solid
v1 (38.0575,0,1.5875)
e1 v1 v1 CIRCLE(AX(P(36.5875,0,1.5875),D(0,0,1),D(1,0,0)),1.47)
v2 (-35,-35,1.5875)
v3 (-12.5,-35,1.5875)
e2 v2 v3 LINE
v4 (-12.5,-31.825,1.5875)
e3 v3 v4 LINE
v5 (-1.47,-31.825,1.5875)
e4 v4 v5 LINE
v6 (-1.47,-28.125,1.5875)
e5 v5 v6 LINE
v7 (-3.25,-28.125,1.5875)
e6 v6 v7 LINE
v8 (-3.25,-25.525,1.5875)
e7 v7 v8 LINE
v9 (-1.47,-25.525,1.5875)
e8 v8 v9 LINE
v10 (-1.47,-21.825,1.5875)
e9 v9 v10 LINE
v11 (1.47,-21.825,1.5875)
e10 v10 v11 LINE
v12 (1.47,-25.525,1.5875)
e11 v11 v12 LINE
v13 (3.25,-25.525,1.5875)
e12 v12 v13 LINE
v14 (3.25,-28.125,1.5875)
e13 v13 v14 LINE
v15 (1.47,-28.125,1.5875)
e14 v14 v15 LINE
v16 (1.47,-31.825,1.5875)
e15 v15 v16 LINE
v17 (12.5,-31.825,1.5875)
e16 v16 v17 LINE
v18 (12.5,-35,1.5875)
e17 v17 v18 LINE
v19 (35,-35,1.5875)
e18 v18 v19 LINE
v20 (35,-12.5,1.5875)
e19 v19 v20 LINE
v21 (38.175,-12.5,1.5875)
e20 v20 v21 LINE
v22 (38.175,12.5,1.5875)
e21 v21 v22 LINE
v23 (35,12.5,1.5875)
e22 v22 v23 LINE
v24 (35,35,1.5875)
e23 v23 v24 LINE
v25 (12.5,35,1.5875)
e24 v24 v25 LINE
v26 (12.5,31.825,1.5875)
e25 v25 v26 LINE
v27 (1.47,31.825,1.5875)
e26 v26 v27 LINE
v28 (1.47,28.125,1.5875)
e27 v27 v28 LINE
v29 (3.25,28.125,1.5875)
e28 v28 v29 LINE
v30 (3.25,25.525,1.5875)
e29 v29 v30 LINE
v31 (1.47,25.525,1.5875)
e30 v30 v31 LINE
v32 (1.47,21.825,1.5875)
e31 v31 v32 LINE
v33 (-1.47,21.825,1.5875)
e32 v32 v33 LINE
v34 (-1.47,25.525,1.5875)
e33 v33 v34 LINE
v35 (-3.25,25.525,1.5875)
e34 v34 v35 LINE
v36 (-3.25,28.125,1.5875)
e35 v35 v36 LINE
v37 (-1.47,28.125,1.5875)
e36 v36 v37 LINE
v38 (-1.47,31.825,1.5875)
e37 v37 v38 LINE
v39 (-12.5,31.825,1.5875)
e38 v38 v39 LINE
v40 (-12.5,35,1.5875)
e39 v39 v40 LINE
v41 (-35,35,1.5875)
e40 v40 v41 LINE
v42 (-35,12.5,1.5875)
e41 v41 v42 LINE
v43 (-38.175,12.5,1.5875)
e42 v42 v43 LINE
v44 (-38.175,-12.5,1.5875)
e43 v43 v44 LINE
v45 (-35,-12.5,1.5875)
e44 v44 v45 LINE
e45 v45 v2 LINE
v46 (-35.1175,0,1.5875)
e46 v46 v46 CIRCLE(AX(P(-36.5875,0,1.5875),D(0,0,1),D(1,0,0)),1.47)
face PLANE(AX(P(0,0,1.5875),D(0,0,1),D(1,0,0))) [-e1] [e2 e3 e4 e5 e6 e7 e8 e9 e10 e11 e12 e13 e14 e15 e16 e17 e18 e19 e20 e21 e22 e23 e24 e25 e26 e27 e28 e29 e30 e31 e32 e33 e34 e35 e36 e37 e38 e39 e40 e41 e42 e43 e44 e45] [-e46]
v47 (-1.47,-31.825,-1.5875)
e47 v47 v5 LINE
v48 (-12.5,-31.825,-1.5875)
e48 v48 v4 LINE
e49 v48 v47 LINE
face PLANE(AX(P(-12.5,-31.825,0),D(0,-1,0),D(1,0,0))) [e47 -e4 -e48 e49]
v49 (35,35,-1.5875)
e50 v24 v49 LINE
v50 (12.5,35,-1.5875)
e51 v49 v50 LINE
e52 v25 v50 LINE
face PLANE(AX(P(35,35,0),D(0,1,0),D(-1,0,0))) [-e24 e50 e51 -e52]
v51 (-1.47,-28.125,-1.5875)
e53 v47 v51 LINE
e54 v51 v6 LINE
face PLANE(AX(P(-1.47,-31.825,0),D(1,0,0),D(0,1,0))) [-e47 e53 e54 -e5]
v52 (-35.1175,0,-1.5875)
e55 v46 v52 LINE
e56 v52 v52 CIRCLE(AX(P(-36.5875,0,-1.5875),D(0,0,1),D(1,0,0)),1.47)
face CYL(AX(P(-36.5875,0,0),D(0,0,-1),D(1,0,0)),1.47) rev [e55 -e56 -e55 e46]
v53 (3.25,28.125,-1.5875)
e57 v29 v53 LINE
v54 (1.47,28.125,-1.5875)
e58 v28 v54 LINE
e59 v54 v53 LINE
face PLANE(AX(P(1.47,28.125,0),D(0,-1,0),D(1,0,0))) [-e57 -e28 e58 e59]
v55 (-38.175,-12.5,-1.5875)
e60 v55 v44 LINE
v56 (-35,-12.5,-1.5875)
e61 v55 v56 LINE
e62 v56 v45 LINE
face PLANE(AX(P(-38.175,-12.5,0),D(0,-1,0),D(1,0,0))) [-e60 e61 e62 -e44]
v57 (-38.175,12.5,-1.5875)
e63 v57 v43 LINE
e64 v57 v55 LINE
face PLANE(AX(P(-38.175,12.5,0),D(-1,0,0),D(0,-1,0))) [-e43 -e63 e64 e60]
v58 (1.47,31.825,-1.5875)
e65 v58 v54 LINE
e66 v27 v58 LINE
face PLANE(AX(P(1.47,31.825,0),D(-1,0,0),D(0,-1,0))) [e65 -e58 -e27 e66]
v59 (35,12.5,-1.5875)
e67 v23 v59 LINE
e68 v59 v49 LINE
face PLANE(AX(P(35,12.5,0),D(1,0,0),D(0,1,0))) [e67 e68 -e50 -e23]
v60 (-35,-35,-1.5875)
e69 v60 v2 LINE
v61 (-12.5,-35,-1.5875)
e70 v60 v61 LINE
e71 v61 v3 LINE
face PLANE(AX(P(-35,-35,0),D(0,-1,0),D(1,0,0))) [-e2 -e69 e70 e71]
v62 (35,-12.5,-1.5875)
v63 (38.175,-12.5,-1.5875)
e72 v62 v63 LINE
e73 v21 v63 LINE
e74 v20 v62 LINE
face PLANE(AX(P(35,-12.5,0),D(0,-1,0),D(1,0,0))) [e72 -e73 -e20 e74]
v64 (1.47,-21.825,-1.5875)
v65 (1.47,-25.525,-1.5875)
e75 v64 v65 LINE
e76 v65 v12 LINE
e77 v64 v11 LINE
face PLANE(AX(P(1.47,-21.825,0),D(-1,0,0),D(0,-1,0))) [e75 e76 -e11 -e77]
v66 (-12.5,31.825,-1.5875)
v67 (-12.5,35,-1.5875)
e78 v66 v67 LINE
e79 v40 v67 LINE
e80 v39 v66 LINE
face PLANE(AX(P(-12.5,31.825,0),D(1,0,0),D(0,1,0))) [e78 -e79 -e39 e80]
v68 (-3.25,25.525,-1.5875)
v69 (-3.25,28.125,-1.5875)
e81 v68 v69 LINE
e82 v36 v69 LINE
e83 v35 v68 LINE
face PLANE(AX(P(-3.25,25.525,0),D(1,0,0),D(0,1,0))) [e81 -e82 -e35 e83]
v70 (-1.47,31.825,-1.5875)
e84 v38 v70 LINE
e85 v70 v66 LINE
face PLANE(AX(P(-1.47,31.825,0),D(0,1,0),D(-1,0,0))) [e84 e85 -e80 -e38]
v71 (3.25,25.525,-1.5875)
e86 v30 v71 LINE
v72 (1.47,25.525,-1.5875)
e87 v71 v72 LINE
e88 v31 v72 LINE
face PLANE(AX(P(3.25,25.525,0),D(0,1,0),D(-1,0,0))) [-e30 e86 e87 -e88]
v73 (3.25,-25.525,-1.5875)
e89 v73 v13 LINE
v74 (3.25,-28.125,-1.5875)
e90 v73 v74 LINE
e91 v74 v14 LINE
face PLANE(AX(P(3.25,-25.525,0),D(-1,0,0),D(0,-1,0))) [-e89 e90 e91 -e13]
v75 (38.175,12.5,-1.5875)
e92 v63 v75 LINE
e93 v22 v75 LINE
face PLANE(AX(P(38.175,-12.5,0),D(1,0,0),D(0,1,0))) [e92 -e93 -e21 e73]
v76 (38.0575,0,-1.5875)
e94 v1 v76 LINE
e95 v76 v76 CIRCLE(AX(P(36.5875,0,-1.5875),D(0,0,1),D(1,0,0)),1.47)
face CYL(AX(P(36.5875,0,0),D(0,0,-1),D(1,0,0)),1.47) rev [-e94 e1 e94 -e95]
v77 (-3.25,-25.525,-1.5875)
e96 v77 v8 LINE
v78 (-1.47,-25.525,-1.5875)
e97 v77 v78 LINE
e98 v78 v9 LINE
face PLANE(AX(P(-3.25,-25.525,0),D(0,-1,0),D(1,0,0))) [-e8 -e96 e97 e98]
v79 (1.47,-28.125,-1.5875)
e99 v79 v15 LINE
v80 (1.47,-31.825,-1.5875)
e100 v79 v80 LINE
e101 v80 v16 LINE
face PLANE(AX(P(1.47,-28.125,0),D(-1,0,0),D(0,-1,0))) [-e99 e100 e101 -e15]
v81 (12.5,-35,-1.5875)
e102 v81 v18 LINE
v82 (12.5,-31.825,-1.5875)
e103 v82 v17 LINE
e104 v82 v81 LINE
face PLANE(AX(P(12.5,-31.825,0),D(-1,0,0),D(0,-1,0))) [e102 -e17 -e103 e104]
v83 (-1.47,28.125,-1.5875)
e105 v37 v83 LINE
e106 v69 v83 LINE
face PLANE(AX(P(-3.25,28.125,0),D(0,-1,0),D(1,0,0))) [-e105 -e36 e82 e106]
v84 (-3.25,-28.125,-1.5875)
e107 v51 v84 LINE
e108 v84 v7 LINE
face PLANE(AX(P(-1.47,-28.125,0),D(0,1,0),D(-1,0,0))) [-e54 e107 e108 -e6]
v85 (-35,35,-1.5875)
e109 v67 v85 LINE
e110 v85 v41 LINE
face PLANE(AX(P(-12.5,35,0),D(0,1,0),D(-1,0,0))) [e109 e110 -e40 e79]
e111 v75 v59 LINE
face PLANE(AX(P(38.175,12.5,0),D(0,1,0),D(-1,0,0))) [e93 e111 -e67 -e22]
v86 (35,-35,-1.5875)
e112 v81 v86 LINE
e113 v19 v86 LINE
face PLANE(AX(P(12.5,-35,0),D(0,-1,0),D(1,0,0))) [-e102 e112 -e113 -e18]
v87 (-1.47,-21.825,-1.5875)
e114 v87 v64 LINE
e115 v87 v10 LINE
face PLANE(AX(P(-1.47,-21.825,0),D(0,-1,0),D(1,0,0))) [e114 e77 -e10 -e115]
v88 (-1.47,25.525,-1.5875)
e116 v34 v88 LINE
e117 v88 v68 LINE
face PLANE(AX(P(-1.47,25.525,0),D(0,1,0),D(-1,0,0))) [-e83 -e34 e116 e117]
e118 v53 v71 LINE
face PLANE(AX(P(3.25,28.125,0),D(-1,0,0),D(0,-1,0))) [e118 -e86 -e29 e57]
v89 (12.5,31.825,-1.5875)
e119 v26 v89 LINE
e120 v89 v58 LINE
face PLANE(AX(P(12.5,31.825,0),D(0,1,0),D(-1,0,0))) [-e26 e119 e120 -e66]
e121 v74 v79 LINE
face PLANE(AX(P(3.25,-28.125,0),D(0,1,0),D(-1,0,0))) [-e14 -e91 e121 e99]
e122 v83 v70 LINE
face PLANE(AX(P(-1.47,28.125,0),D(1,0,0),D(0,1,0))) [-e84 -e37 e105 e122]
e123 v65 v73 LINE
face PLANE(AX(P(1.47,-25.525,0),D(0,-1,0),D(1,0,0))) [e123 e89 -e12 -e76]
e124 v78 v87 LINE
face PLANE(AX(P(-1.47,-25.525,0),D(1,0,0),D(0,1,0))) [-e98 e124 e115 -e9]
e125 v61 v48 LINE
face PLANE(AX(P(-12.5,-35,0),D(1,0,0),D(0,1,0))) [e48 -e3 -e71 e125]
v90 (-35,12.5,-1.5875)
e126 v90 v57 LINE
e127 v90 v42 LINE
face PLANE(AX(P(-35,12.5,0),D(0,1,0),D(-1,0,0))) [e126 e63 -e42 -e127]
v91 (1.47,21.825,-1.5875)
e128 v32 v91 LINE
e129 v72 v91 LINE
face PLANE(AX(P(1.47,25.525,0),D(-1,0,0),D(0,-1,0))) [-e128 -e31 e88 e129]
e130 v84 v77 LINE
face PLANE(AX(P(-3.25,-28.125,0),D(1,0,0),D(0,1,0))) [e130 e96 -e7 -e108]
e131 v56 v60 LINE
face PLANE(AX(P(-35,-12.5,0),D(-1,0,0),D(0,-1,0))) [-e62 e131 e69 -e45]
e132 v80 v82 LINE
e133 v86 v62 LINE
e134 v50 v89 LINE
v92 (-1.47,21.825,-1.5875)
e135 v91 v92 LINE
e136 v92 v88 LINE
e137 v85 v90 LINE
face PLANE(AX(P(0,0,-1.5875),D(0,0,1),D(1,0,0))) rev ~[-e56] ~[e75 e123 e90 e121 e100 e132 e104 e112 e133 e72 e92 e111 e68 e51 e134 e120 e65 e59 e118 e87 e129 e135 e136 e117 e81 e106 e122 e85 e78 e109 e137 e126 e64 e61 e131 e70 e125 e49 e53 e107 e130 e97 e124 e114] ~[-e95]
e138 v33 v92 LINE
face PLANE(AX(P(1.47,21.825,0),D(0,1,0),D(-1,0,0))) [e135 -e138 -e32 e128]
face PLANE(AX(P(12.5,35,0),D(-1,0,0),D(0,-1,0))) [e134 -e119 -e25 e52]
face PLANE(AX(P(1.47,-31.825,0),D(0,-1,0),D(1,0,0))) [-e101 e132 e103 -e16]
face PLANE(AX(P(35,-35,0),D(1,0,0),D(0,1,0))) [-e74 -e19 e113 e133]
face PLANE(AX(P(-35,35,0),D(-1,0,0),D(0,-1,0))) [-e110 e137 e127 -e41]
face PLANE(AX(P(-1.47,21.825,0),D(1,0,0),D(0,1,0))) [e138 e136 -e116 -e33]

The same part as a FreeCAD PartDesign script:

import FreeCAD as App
import Part
import Sketcher

V = App.Vector
Q = App.Units.Quantity

doc = App.newDocument("Part")
params = doc.addObject("Spreadsheet::Sheet", "Params")
for row, (alias, value) in enumerate([
    ("sketch1_diameter", "2.94 mm"),
    ("sketch1_height", "25 mm"),
    ("sketch1_width", "22.5 mm"),
    ("sketch1_height2", "3.7 mm"),
    ("sketch1_height3", "2.6 mm"),
    ("pad1_length", "3.175 mm"),
], start=1):
    params.set(f"A{row}", alias)
    params.set(f"B{row}", "=" + value)
    params.setAlias(f"B{row}", alias)

body = doc.addObject("PartDesign::Body", "Body")

# Sketch on XY plane
sketch1 = body.newObject("Sketcher::SketchObject", "Sketch")
sketch1.AttachmentSupport = (doc.getObject("XY_Plane"), [""])
sketch1.MapMode = "FlatFace"
sketch1.addGeometry([
    Part.LineSegment(V(-12.5, 35, 0), V(-35, 35, 0)),  # 0
    Part.LineSegment(V(-35, 35, 0), V(-35, 12.5, 0)),  # 1
    Part.LineSegment(V(-35, 12.5, 0), V(-38.175, 12.5, 0)),  # 2
    Part.LineSegment(V(-38.175, 12.5, 0), V(-38.175, -12.5, 0)),  # 3
    Part.LineSegment(V(-38.175, -12.5, 0), V(-35, -12.5, 0)),  # 4
    Part.LineSegment(V(-35, -12.5, 0), V(-35, -35, 0)),  # 5
    Part.LineSegment(V(-35, -35, 0), V(-12.5, -35, 0)),  # 6
    Part.LineSegment(V(-12.5, -35, 0), V(-12.5, -31.825, 0)),  # 7
    Part.LineSegment(V(-12.5, -31.825, 0), V(-1.47, -31.825, 0)),  # 8
    Part.LineSegment(V(-1.47, -31.825, 0), V(-1.47, -28.125, 0)),  # 9
    Part.LineSegment(V(-1.47, -28.125, 0), V(-3.25, -28.125, 0)),  # 10
    Part.LineSegment(V(-3.25, -28.125, 0), V(-3.25, -25.525, 0)),  # 11
    Part.LineSegment(V(-3.25, -25.525, 0), V(-1.47, -25.525, 0)),  # 12
    Part.LineSegment(V(-1.47, -25.525, 0), V(-1.47, -21.825, 0)),  # 13
    Part.LineSegment(V(-1.47, -21.825, 0), V(1.47, -21.825, 0)),  # 14
    Part.LineSegment(V(1.47, -21.825, 0), V(1.47, -25.525, 0)),  # 15
    Part.LineSegment(V(1.47, -25.525, 0), V(3.25, -25.525, 0)),  # 16
    Part.LineSegment(V(3.25, -25.525, 0), V(3.25, -28.125, 0)),  # 17
    Part.LineSegment(V(3.25, -28.125, 0), V(1.47, -28.125, 0)),  # 18
    Part.LineSegment(V(1.47, -28.125, 0), V(1.47, -31.825, 0)),  # 19
    Part.LineSegment(V(1.47, -31.825, 0), V(12.5, -31.825, 0)),  # 20
    Part.LineSegment(V(12.5, -31.825, 0), V(12.5, -35, 0)),  # 21
    Part.LineSegment(V(12.5, -35, 0), V(35, -35, 0)),  # 22
    Part.LineSegment(V(35, -35, 0), V(35, -12.5, 0)),  # 23
    Part.LineSegment(V(35, -12.5, 0), V(38.175, -12.5, 0)),  # 24
    Part.LineSegment(V(38.175, -12.5, 0), V(38.175, 12.5, 0)),  # 25
    Part.LineSegment(V(38.175, 12.5, 0), V(35, 12.5, 0)),  # 26
    Part.LineSegment(V(35, 12.5, 0), V(35, 35, 0)),  # 27
    Part.LineSegment(V(35, 35, 0), V(12.5, 35, 0)),  # 28
    Part.LineSegment(V(12.5, 35, 0), V(12.5, 31.825, 0)),  # 29
    Part.LineSegment(V(12.5, 31.825, 0), V(1.47, 31.825, 0)),  # 30
    Part.LineSegment(V(1.47, 31.825, 0), V(1.47, 28.125, 0)),  # 31
    Part.LineSegment(V(1.47, 28.125, 0), V(3.25, 28.125, 0)),  # 32
    Part.LineSegment(V(3.25, 28.125, 0), V(3.25, 25.525, 0)),  # 33
    Part.LineSegment(V(3.25, 25.525, 0), V(1.47, 25.525, 0)),  # 34
    Part.LineSegment(V(1.47, 25.525, 0), V(1.47, 21.825, 0)),  # 35
    Part.LineSegment(V(1.47, 21.825, 0), V(-1.47, 21.825, 0)),  # 36
    Part.LineSegment(V(-1.47, 21.825, 0), V(-1.47, 25.525, 0)),  # 37
    Part.LineSegment(V(-1.47, 25.525, 0), V(-3.25, 25.525, 0)),  # 38
    Part.LineSegment(V(-3.25, 25.525, 0), V(-3.25, 28.125, 0)),  # 39
    Part.LineSegment(V(-3.25, 28.125, 0), V(-1.47, 28.125, 0)),  # 40
    Part.LineSegment(V(-1.47, 28.125, 0), V(-1.47, 31.825, 0)),  # 41
    Part.LineSegment(V(-1.47, 31.825, 0), V(-12.5, 31.825, 0)),  # 42
    Part.LineSegment(V(-12.5, 31.825, 0), V(-12.5, 35, 0)),  # 43
    Part.Circle(V(-36.5875, 0, 0), V(0, 0, 1), 1.47),  # 44
    Part.Circle(V(36.5875, 0, 0), V(0, 0, 1), 1.47),  # 45
], False)
sketch1.addConstraint([
    Sketcher.Constraint("Coincident", 0, 2, 1, 1),
    Sketcher.Constraint("Coincident", 1, 2, 2, 1),
    Sketcher.Constraint("Coincident", 2, 2, 3, 1),
    Sketcher.Constraint("Coincident", 3, 2, 4, 1),
    Sketcher.Constraint("Coincident", 4, 2, 5, 1),
    Sketcher.Constraint("Coincident", 5, 2, 6, 1),
    Sketcher.Constraint("Coincident", 6, 2, 7, 1),
    Sketcher.Constraint("Coincident", 7, 2, 8, 1),
    Sketcher.Constraint("Coincident", 8, 2, 9, 1),
    Sketcher.Constraint("Coincident", 9, 2, 10, 1),
    Sketcher.Constraint("Coincident", 10, 2, 11, 1),
    Sketcher.Constraint("Coincident", 11, 2, 12, 1),
    Sketcher.Constraint("Coincident", 12, 2, 13, 1),
    Sketcher.Constraint("Coincident", 13, 2, 14, 1),
    Sketcher.Constraint("Coincident", 14, 2, 15, 1),
    Sketcher.Constraint("Coincident", 15, 2, 16, 1),
    Sketcher.Constraint("Coincident", 16, 2, 17, 1),
    Sketcher.Constraint("Coincident", 17, 2, 18, 1),
    Sketcher.Constraint("Coincident", 18, 2, 19, 1),
    Sketcher.Constraint("Coincident", 19, 2, 20, 1),
    Sketcher.Constraint("Coincident", 20, 2, 21, 1),
    Sketcher.Constraint("Coincident", 21, 2, 22, 1),
    Sketcher.Constraint("Coincident", 22, 2, 23, 1),
    Sketcher.Constraint("Coincident", 23, 2, 24, 1),
    Sketcher.Constraint("Coincident", 24, 2, 25, 1),
    Sketcher.Constraint("Coincident", 25, 2, 26, 1),
    Sketcher.Constraint("Coincident", 26, 2, 27, 1),
    Sketcher.Constraint("Coincident", 27, 2, 28, 1),
    Sketcher.Constraint("Coincident", 28, 2, 29, 1),
    Sketcher.Constraint("Coincident", 29, 2, 30, 1),
    Sketcher.Constraint("Coincident", 30, 2, 31, 1),
    Sketcher.Constraint("Coincident", 31, 2, 32, 1),
    Sketcher.Constraint("Coincident", 32, 2, 33, 1),
    Sketcher.Constraint("Coincident", 33, 2, 34, 1),
    Sketcher.Constraint("Coincident", 34, 2, 35, 1),
    Sketcher.Constraint("Coincident", 35, 2, 36, 1),
    Sketcher.Constraint("Coincident", 36, 2, 37, 1),
    Sketcher.Constraint("Coincident", 37, 2, 38, 1),
    Sketcher.Constraint("Coincident", 38, 2, 39, 1),
    Sketcher.Constraint("Coincident", 39, 2, 40, 1),
    Sketcher.Constraint("Coincident", 40, 2, 41, 1),
    Sketcher.Constraint("Coincident", 41, 2, 42, 1),
    Sketcher.Constraint("Coincident", 42, 2, 43, 1),
    Sketcher.Constraint("Coincident", 43, 2, 0, 1),
    Sketcher.Constraint("Horizontal", 0),
    Sketcher.Constraint("Vertical", 1),
    Sketcher.Constraint("Horizontal", 2),
    Sketcher.Constraint("Vertical", 3),
    Sketcher.Constraint("Horizontal", 4),
    Sketcher.Constraint("Vertical", 5),
    Sketcher.Constraint("Horizontal", 6),
    Sketcher.Constraint("Vertical", 7),
    Sketcher.Constraint("Horizontal", 8),
    Sketcher.Constraint("Vertical", 9),
    Sketcher.Constraint("Horizontal", 10),
    Sketcher.Constraint("Vertical", 11),
    Sketcher.Constraint("Horizontal", 12),
    Sketcher.Constraint("Vertical", 13),
    Sketcher.Constraint("Horizontal", 14),
    Sketcher.Constraint("Vertical", 15),
    Sketcher.Constraint("Horizontal", 16),
    Sketcher.Constraint("Vertical", 17),
    Sketcher.Constraint("Horizontal", 18),
    Sketcher.Constraint("Vertical", 19),
    Sketcher.Constraint("Horizontal", 20),
    Sketcher.Constraint("Vertical", 21),
    Sketcher.Constraint("Horizontal", 22),
    Sketcher.Constraint("Vertical", 23),
    Sketcher.Constraint("Horizontal", 24),
    Sketcher.Constraint("Vertical", 25),
    Sketcher.Constraint("Horizontal", 26),
    Sketcher.Constraint("Vertical", 27),
    Sketcher.Constraint("Horizontal", 28),
    Sketcher.Constraint("Vertical", 29),
    Sketcher.Constraint("Horizontal", 30),
    Sketcher.Constraint("Vertical", 31),
    Sketcher.Constraint("Horizontal", 32),
    Sketcher.Constraint("Vertical", 33),
    Sketcher.Constraint("Horizontal", 34),
    Sketcher.Constraint("Vertical", 35),
    Sketcher.Constraint("Horizontal", 36),
    Sketcher.Constraint("Vertical", 37),
    Sketcher.Constraint("Horizontal", 38),
    Sketcher.Constraint("Vertical", 39),
    Sketcher.Constraint("Horizontal", 40),
    Sketcher.Constraint("Vertical", 41),
    Sketcher.Constraint("Horizontal", 42),
    Sketcher.Constraint("Vertical", 43),
    Sketcher.Constraint("Equal", 44, 45),
    Sketcher.Constraint("Symmetric", 44, 3, 45, 3, -1, 1),
    Sketcher.Constraint("Symmetric", 0, 2, 22, 2, -1, 1),
    Sketcher.Constraint("Symmetric", 2, 2, 24, 2, -1, 1),
    Sketcher.Constraint("Symmetric", 4, 2, 26, 2, -1, 1),
    Sketcher.Constraint("Symmetric", 6, 2, 28, 2, -1, 1),
    Sketcher.Constraint("Symmetric", 8, 2, 30, 2, -1, 1),
    Sketcher.Constraint("Symmetric", 10, 2, 32, 2, -1, 1),
    Sketcher.Constraint("Symmetric", 12, 2, 34, 2, -1, 1),
    Sketcher.Constraint("Symmetric", 14, 2, 36, 2, -1, 1),
    Sketcher.Constraint("Symmetric", 16, 2, 38, 2, -1, 1),
    Sketcher.Constraint("Symmetric", 18, 2, 40, 2, -1, 1),
    Sketcher.Constraint("Symmetric", 20, 2, 42, 2, -1, 1),
    Sketcher.Constraint("Symmetric", 12, 2, 15, 2, -2),
    Sketcher.Constraint("Symmetric", 10, 2, 17, 2, -2),
    Sketcher.Constraint("Symmetric", 8, 2, 19, 2, -2),
    Sketcher.Constraint("Symmetric", 6, 2, 21, 2, -2),
    Sketcher.Constraint("Symmetric", 4, 2, 23, 2, -2),
    Sketcher.Constraint("PointOnObject", 44, 3, -1),
    Sketcher.Constraint("Vertical", 9, 2, 12, 2),
    Sketcher.Constraint("Equal", 28, 1),
    Sketcher.Constraint("Equal", 26, 7),
    Sketcher.Constraint("Equal", 9, 13),
    Sketcher.Constraint("Diameter", 44, Q("2.94 mm")),
    Sketcher.Constraint("DistanceY", 3, 2, 3, 1, Q("25 mm")),
    Sketcher.Constraint("DistanceX", 0, 2, 0, 1, Q("22.5 mm")),
    Sketcher.Constraint("DistanceY", 9, 1, 9, 2, Q("3.7 mm")),
    Sketcher.Constraint("DistanceY", 11, 1, 11, 2, Q("2.6 mm")),
    Sketcher.Constraint("DistanceX", 0, 2, -1, 1, Q("35 mm")),
    Sketcher.Constraint("DistanceX", 8, 1, 8, 2, Q("11.03 mm")),
    Sketcher.Constraint("DistanceX", 10, 2, 10, 1, Q("1.78 mm")),
    Sketcher.Constraint("DistanceX", 2, 2, 2, 1, Q("3.175 mm")),
    Sketcher.Constraint("DistanceX", 44, 3, 45, 3, Q("73.175 mm")),
])
sketch1.setExpression("Constraints[111]", "Params.sketch1_diameter")
sketch1.setExpression("Constraints[112]", "Params.sketch1_height")
sketch1.setExpression("Constraints[113]", "Params.sketch1_width")
sketch1.setExpression("Constraints[114]", "Params.sketch1_height2")
sketch1.setExpression("Constraints[115]", "Params.sketch1_height3")
pad1 = body.newObject("PartDesign::Pad", "Pad")
pad1.Profile = sketch1
pad1.setExpression("Length", "Params.pad1_length")
pad1.Midplane = True

doc.recompute()
